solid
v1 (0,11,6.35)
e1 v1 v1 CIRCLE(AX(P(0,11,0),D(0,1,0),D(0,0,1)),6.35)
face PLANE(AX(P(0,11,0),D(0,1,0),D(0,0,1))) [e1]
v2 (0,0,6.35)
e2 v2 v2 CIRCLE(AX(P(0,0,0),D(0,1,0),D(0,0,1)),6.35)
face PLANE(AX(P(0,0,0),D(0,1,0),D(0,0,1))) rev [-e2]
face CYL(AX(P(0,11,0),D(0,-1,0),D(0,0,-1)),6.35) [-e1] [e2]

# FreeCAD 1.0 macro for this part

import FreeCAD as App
import Part
import Sketcher

V = App.Vector
Q = App.Units.Quantity

doc = App.newDocument("Part")
body = doc.addObject("PartDesign::Body", "Body")

# Sketch on XZ plane
sketch1 = doc.addObject("Sketcher::SketchObject", "Sketch")
body.addObject(sketch1)
sketch1.AttachmentSupport = (doc.XZ_Plane, [""])
sketch1.MapMode = "FlatFace"
sketch1.addGeometry(Part.Circle(V(0, 0, 0), V(0, 0, 1), 6.35), False)
sketch1.addConstraint([
    Sketcher.Constraint("Coincident", 0, 3, -1, 1),
    Sketcher.Constraint("Diameter", 0, Q("12.7 mm")),
])
pad1 = doc.addObject("PartDesign::Pad", "Pad")
body.addObject(pad1)
pad1.Profile = sketch1
pad1.Length = 11
pad1.Reversed = True

doc.recompute()
